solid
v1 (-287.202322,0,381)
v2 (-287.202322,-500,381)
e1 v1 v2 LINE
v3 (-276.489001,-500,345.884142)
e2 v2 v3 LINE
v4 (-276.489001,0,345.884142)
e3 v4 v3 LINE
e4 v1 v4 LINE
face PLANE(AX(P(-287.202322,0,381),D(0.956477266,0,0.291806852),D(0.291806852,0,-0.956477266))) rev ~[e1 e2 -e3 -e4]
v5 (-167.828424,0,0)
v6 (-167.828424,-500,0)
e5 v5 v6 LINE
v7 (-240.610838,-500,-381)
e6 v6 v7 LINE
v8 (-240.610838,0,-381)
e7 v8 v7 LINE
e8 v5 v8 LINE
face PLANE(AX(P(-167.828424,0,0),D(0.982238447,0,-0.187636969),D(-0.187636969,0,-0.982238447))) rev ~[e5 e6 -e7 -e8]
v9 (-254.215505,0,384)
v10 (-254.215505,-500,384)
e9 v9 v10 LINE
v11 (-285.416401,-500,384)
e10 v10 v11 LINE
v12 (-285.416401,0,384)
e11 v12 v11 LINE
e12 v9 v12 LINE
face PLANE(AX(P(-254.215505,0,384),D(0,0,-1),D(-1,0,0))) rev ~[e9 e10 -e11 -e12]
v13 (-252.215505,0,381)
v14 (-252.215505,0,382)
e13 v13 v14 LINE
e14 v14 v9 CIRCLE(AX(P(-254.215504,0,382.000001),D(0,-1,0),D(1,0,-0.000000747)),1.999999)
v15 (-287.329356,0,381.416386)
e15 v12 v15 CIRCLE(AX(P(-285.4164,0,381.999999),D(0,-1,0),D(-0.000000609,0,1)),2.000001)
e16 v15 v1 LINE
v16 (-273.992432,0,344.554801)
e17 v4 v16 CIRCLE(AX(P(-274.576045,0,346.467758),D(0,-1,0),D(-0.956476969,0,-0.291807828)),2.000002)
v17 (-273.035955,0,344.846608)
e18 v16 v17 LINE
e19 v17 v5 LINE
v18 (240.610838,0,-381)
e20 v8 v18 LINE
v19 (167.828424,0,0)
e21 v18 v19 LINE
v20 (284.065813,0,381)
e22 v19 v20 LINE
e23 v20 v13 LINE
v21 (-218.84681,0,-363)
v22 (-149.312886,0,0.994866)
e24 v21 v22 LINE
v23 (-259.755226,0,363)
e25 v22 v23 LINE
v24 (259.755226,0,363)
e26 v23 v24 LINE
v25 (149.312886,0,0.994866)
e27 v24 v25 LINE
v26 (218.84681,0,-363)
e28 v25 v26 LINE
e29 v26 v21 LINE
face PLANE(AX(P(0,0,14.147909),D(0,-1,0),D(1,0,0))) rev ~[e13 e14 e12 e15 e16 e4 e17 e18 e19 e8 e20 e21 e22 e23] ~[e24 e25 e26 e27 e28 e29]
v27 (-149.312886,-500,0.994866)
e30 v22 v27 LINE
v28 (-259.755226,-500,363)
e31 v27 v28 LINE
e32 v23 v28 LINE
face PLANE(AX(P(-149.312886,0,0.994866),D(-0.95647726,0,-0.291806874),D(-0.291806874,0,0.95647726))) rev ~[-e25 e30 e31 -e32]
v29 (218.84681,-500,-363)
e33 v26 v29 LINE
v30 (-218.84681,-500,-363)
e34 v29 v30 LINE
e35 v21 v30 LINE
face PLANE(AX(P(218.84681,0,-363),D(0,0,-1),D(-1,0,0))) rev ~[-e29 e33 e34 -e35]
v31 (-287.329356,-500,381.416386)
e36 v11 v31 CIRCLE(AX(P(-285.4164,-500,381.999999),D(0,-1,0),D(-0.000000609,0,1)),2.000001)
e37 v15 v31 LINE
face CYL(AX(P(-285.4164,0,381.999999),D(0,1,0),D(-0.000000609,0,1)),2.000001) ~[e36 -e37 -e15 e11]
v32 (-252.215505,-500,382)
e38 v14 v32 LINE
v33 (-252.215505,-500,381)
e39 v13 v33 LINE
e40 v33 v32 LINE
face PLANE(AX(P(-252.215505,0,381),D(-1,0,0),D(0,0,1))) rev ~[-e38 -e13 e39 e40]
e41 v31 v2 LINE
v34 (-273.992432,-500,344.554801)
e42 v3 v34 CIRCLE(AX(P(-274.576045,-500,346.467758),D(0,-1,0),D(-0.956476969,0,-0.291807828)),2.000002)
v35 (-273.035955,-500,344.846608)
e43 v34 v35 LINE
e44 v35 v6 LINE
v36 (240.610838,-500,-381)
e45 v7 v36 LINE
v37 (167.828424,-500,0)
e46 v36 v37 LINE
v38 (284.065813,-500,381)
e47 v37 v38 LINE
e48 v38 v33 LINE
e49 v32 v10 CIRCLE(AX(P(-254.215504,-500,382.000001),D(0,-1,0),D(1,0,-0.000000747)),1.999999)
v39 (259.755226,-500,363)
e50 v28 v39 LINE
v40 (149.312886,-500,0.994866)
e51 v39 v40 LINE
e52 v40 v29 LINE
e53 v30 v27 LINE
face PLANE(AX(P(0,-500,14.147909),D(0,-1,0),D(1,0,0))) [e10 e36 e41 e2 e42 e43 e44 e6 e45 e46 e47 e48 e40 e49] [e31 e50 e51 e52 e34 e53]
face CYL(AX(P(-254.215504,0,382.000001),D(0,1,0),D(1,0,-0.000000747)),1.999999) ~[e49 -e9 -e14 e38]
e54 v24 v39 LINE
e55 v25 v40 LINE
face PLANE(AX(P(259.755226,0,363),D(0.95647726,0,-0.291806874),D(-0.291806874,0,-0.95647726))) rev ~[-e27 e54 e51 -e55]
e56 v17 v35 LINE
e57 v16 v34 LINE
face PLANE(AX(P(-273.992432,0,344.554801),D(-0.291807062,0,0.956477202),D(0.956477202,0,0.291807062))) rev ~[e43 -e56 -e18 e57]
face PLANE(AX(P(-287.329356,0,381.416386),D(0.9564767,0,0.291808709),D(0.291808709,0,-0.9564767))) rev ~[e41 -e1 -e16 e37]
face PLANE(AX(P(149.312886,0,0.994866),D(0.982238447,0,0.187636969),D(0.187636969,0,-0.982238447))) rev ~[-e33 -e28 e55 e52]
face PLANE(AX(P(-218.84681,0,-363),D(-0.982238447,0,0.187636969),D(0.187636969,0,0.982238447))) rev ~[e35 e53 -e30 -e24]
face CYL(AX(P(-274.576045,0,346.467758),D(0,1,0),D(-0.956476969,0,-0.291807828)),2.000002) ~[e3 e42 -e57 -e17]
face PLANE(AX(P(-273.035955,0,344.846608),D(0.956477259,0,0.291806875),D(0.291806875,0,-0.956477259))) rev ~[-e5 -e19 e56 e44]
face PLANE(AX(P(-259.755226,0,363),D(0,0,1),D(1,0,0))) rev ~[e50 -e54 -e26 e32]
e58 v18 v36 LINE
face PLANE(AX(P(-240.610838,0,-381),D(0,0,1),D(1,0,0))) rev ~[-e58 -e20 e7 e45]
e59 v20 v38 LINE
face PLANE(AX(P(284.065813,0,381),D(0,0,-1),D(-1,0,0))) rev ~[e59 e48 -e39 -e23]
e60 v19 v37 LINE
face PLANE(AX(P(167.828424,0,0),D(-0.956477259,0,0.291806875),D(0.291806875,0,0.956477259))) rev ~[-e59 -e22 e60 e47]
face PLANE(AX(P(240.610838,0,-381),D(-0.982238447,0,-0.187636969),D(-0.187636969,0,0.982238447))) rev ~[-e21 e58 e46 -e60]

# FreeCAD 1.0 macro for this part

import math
import FreeCAD as App
import Part
import Sketcher
from FreeCAD import Vector
Q = App.Units.Quantity


def add_polygon(sketch, points):
    """Adds a closed chain of lines whose ends are joined by coincident constraints."""
    first, n = sketch.GeometryCount, len(points)
    for a, b in zip(points, points[1:] + points[:1]):
        sketch.addGeometry(Part.LineSegment(App.Vector(*a, 0), App.Vector(*b, 0)), False)
    for i in range(n):
        sketch.addConstraint(Sketcher.Constraint("Coincident", first + i, 2, first + (i + 1) % n, 1))

doc = App.newDocument("Part")
body = doc.addObject("PartDesign::Body", "Body")

# Sketch on XZ plane
sketch1 = body.newObject("Sketcher::SketchObject", "Sketch")
sketch1.AttachmentSupport = (doc.getObject("XZ_Plane"), [""])
sketch1.MapMode = "FlatFace"
sketch1.addGeometry(Part.LineSegment(Vector(-273.035955, 344.846608, 0), Vector(-167.828424, 0, 0)), False)  # 0
sketch1.addGeometry(Part.LineSegment(Vector(-167.828424, 0, 0), Vector(-240.610838, -381, 0)), False)  # 1
sketch1.addGeometry(Part.LineSegment(Vector(-240.610838, -381, 0), Vector(240.610838, -381, 0)), False)  # 2
sketch1.addGeometry(Part.LineSegment(Vector(240.610838, -381, 0), Vector(167.828424, 0, 0)), False)  # 3
sketch1.addGeometry(Part.LineSegment(Vector(167.828424, 0, 0), Vector(284.065813, 381, 0)), False)  # 4
sketch1.addGeometry(Part.LineSegment(Vector(284.065813, 381, 0), Vector(-252.215505, 381, 0)), False)  # 5
sketch1.addGeometry(Part.LineSegment(Vector(-252.215505, 381, 0), Vector(-252.215505, 382, 0)), False)  # 6
sketch1.addGeometry(Part.ArcOfCircle(Part.Circle(Vector(-254.215504, 382.000001, 0), Vector(0, 0, 1), 1.999999), math.radians(-0.000043), math.radians(90.000043)), False)  # 7
sketch1.addGeometry(Part.LineSegment(Vector(-254.215505, 384, 0), Vector(-285.416401, 384, 0)), False)  # 8
sketch1.addGeometry(Part.ArcOfCircle(Part.Circle(Vector(-285.4164, 381.999999, 0), Vector(0, 0, 1), 2.000001), math.radians(90.000035), math.radians(196.966119)), False)  # 9
sketch1.addGeometry(Part.LineSegment(Vector(-287.329356, 381.416386, 0), Vector(-287.202322, 381, 0)), False)  # 10
sketch1.addGeometry(Part.LineSegment(Vector(-287.202322, 381, 0), Vector(-276.489001, 345.884142, 0)), False)  # 11
sketch1.addGeometry(Part.ArcOfCircle(Part.Circle(Vector(-274.576045, 346.467758, 0), Vector(0, 0, 1), 2.000002), math.radians(-163.033781), math.radians(-73.033889)), False)  # 12
sketch1.addGeometry(Part.LineSegment(Vector(-273.992432, 344.554801, 0), Vector(-273.035955, 344.846608, 0)), False)  # 13
add_polygon(sketch1, [(-218.84681, -363), (-149.312886, 0.994866), (-259.755226, 363), (259.755226, 363), (149.312886, 0.994866), (218.84681, -363)])  # lines 14-19
sketch1.addConstraint([
    Sketcher.Constraint("Coincident", 0, 2, 1, 1),
    Sketcher.Constraint("Coincident", 1, 2, 2, 1),
    Sketcher.Constraint("Coincident", 2, 2, 3, 1),
    Sketcher.Constraint("Coincident", 3, 2, 4, 1),
    Sketcher.Constraint("Coincident", 4, 2, 5, 1),
    Sketcher.Constraint("Coincident", 5, 2, 6, 1),
    Sketcher.Constraint("Coincident", 6, 2, 7, 1),
    Sketcher.Constraint("Coincident", 7, 2, 8, 1),
    Sketcher.Constraint("Coincident", 8, 2, 9, 1),
    Sketcher.Constraint("Coincident", 9, 2, 10, 1),
    Sketcher.Constraint("Coincident", 10, 2, 11, 1),
    Sketcher.Constraint("Coincident", 11, 2, 12, 1),
    Sketcher.Constraint("Coincident", 12, 2, 13, 1),
    Sketcher.Constraint("Coincident", 13, 2, 0, 1),
    Sketcher.Constraint("Horizontal", 2),
    Sketcher.Constraint("Horizontal", 5),
    Sketcher.Constraint("Vertical", 6),
    Sketcher.Constraint("Horizontal", 8),
    Sketcher.Constraint("Horizontal", 16),
    Sketcher.Constraint("Horizontal", 19),
    Sketcher.Constraint("PointOnObject", 0, 2, -1),
    Sketcher.Constraint("PointOnObject", 3, 2, -1),
    Sketcher.Constraint("Radius", 7, Q("1.999999 mm")),
    Sketcher.Constraint("Radius", 9, Q("2.000001 mm")),
    Sketcher.Constraint("DistanceY", 6, 1, 6, 2, Q("1 mm")),
    Sketcher.Constraint("Distance", 13, Q("1 mm")),
    Sketcher.Constraint("DistanceY", -1, 1, 7, 3, Q("382.000001 mm")),
    Sketcher.Constraint("DistanceY", 1, 2, -1, 1, Q("381 mm")),
    Sketcher.Constraint("DistanceY", -1, 1, 4, 2, Q("381 mm")),
    Sketcher.Constraint("DistanceY", -1, 1, 10, 2, Q("381 mm")),
    Sketcher.Constraint("DistanceY", -1, 1, 15, 2, Q("363 mm")),
    Sketcher.Constraint("DistanceY", 18, 2, -1, 1, Q("363 mm")),
    Sketcher.Constraint("DistanceX", 7, 2, 6, 2, Q("2 mm")),
    Sketcher.Constraint("DistanceX", 11, 2, -1, 1, Q("276.489001 mm")),
    Sketcher.Constraint("Radius", 12, Q("2.000002 mm")),
    Sketcher.Constraint("DistanceX", 5, 2, 5, 1, Q("536.281318 mm")),
    Sketcher.Constraint("DistanceX", 16, 1, 16, 2, Q("519.510452 mm")),
    Sketcher.Constraint("DistanceX", 19, 2, 19, 1, Q("437.69362 mm")),
    Sketcher.Constraint("DistanceX", 9, 3, -1, 1, Q("285.4164 mm")),
    Sketcher.Constraint("DistanceX", 8, 2, -1, 1, Q("285.416401 mm")),
    Sketcher.Constraint("DistanceY", -1, 1, 12, 2, Q("344.554801 mm")),
    Sketcher.Constraint("DistanceX", 3, 2, 16, 2, Q("91.926802 mm")),
    Sketcher.Constraint("Distance", 0, Q("360.538219 mm")),
    Sketcher.Constraint("Distance", 1, Q("387.88952 mm")),
    Sketcher.Constraint("Distance", 3, Q("387.88952 mm")),
    Sketcher.Constraint("Distance", 11, Q("36.71374 mm")),
    Sketcher.Constraint("DistanceX", 2, 1, 2, 2, Q("481.221676 mm")),
    Sketcher.Constraint("DistanceX", 8, 2, 8, 1, Q("31.200896 mm")),
    Sketcher.Constraint("DistanceY", -1, 1, 12, 3, Q("346.467758 mm")),
    Sketcher.Constraint("DistanceX", 1, 2, -1, 1, Q("240.610838 mm")),
    Sketcher.Constraint("DistanceX", 10, 2, -1, 1, Q("287.202322 mm")),
    Sketcher.Constraint("DistanceX", -1, 1, 18, 2, Q("218.84681 mm")),
    Sketcher.Constraint("DistanceX", 9, 2, 7, 2, Q("33.113851 mm")),
    Sketcher.Constraint("DistanceX", 0, 2, 14, 2, Q("18.515538 mm")),
    Sketcher.Constraint("DistanceY", 14, 2, 13, 2, Q("343.851742 mm")),
    Sketcher.Constraint("DistanceX", 17, 2, 3, 2, Q("18.515538 mm")),
    Sketcher.Constraint("Distance", 17, Q("378.477513 mm")),
])
pad1 = body.newObject("PartDesign::Pad", "Pad")
pad1.Profile = sketch1
pad1.Length = 500

doc.recompute()
